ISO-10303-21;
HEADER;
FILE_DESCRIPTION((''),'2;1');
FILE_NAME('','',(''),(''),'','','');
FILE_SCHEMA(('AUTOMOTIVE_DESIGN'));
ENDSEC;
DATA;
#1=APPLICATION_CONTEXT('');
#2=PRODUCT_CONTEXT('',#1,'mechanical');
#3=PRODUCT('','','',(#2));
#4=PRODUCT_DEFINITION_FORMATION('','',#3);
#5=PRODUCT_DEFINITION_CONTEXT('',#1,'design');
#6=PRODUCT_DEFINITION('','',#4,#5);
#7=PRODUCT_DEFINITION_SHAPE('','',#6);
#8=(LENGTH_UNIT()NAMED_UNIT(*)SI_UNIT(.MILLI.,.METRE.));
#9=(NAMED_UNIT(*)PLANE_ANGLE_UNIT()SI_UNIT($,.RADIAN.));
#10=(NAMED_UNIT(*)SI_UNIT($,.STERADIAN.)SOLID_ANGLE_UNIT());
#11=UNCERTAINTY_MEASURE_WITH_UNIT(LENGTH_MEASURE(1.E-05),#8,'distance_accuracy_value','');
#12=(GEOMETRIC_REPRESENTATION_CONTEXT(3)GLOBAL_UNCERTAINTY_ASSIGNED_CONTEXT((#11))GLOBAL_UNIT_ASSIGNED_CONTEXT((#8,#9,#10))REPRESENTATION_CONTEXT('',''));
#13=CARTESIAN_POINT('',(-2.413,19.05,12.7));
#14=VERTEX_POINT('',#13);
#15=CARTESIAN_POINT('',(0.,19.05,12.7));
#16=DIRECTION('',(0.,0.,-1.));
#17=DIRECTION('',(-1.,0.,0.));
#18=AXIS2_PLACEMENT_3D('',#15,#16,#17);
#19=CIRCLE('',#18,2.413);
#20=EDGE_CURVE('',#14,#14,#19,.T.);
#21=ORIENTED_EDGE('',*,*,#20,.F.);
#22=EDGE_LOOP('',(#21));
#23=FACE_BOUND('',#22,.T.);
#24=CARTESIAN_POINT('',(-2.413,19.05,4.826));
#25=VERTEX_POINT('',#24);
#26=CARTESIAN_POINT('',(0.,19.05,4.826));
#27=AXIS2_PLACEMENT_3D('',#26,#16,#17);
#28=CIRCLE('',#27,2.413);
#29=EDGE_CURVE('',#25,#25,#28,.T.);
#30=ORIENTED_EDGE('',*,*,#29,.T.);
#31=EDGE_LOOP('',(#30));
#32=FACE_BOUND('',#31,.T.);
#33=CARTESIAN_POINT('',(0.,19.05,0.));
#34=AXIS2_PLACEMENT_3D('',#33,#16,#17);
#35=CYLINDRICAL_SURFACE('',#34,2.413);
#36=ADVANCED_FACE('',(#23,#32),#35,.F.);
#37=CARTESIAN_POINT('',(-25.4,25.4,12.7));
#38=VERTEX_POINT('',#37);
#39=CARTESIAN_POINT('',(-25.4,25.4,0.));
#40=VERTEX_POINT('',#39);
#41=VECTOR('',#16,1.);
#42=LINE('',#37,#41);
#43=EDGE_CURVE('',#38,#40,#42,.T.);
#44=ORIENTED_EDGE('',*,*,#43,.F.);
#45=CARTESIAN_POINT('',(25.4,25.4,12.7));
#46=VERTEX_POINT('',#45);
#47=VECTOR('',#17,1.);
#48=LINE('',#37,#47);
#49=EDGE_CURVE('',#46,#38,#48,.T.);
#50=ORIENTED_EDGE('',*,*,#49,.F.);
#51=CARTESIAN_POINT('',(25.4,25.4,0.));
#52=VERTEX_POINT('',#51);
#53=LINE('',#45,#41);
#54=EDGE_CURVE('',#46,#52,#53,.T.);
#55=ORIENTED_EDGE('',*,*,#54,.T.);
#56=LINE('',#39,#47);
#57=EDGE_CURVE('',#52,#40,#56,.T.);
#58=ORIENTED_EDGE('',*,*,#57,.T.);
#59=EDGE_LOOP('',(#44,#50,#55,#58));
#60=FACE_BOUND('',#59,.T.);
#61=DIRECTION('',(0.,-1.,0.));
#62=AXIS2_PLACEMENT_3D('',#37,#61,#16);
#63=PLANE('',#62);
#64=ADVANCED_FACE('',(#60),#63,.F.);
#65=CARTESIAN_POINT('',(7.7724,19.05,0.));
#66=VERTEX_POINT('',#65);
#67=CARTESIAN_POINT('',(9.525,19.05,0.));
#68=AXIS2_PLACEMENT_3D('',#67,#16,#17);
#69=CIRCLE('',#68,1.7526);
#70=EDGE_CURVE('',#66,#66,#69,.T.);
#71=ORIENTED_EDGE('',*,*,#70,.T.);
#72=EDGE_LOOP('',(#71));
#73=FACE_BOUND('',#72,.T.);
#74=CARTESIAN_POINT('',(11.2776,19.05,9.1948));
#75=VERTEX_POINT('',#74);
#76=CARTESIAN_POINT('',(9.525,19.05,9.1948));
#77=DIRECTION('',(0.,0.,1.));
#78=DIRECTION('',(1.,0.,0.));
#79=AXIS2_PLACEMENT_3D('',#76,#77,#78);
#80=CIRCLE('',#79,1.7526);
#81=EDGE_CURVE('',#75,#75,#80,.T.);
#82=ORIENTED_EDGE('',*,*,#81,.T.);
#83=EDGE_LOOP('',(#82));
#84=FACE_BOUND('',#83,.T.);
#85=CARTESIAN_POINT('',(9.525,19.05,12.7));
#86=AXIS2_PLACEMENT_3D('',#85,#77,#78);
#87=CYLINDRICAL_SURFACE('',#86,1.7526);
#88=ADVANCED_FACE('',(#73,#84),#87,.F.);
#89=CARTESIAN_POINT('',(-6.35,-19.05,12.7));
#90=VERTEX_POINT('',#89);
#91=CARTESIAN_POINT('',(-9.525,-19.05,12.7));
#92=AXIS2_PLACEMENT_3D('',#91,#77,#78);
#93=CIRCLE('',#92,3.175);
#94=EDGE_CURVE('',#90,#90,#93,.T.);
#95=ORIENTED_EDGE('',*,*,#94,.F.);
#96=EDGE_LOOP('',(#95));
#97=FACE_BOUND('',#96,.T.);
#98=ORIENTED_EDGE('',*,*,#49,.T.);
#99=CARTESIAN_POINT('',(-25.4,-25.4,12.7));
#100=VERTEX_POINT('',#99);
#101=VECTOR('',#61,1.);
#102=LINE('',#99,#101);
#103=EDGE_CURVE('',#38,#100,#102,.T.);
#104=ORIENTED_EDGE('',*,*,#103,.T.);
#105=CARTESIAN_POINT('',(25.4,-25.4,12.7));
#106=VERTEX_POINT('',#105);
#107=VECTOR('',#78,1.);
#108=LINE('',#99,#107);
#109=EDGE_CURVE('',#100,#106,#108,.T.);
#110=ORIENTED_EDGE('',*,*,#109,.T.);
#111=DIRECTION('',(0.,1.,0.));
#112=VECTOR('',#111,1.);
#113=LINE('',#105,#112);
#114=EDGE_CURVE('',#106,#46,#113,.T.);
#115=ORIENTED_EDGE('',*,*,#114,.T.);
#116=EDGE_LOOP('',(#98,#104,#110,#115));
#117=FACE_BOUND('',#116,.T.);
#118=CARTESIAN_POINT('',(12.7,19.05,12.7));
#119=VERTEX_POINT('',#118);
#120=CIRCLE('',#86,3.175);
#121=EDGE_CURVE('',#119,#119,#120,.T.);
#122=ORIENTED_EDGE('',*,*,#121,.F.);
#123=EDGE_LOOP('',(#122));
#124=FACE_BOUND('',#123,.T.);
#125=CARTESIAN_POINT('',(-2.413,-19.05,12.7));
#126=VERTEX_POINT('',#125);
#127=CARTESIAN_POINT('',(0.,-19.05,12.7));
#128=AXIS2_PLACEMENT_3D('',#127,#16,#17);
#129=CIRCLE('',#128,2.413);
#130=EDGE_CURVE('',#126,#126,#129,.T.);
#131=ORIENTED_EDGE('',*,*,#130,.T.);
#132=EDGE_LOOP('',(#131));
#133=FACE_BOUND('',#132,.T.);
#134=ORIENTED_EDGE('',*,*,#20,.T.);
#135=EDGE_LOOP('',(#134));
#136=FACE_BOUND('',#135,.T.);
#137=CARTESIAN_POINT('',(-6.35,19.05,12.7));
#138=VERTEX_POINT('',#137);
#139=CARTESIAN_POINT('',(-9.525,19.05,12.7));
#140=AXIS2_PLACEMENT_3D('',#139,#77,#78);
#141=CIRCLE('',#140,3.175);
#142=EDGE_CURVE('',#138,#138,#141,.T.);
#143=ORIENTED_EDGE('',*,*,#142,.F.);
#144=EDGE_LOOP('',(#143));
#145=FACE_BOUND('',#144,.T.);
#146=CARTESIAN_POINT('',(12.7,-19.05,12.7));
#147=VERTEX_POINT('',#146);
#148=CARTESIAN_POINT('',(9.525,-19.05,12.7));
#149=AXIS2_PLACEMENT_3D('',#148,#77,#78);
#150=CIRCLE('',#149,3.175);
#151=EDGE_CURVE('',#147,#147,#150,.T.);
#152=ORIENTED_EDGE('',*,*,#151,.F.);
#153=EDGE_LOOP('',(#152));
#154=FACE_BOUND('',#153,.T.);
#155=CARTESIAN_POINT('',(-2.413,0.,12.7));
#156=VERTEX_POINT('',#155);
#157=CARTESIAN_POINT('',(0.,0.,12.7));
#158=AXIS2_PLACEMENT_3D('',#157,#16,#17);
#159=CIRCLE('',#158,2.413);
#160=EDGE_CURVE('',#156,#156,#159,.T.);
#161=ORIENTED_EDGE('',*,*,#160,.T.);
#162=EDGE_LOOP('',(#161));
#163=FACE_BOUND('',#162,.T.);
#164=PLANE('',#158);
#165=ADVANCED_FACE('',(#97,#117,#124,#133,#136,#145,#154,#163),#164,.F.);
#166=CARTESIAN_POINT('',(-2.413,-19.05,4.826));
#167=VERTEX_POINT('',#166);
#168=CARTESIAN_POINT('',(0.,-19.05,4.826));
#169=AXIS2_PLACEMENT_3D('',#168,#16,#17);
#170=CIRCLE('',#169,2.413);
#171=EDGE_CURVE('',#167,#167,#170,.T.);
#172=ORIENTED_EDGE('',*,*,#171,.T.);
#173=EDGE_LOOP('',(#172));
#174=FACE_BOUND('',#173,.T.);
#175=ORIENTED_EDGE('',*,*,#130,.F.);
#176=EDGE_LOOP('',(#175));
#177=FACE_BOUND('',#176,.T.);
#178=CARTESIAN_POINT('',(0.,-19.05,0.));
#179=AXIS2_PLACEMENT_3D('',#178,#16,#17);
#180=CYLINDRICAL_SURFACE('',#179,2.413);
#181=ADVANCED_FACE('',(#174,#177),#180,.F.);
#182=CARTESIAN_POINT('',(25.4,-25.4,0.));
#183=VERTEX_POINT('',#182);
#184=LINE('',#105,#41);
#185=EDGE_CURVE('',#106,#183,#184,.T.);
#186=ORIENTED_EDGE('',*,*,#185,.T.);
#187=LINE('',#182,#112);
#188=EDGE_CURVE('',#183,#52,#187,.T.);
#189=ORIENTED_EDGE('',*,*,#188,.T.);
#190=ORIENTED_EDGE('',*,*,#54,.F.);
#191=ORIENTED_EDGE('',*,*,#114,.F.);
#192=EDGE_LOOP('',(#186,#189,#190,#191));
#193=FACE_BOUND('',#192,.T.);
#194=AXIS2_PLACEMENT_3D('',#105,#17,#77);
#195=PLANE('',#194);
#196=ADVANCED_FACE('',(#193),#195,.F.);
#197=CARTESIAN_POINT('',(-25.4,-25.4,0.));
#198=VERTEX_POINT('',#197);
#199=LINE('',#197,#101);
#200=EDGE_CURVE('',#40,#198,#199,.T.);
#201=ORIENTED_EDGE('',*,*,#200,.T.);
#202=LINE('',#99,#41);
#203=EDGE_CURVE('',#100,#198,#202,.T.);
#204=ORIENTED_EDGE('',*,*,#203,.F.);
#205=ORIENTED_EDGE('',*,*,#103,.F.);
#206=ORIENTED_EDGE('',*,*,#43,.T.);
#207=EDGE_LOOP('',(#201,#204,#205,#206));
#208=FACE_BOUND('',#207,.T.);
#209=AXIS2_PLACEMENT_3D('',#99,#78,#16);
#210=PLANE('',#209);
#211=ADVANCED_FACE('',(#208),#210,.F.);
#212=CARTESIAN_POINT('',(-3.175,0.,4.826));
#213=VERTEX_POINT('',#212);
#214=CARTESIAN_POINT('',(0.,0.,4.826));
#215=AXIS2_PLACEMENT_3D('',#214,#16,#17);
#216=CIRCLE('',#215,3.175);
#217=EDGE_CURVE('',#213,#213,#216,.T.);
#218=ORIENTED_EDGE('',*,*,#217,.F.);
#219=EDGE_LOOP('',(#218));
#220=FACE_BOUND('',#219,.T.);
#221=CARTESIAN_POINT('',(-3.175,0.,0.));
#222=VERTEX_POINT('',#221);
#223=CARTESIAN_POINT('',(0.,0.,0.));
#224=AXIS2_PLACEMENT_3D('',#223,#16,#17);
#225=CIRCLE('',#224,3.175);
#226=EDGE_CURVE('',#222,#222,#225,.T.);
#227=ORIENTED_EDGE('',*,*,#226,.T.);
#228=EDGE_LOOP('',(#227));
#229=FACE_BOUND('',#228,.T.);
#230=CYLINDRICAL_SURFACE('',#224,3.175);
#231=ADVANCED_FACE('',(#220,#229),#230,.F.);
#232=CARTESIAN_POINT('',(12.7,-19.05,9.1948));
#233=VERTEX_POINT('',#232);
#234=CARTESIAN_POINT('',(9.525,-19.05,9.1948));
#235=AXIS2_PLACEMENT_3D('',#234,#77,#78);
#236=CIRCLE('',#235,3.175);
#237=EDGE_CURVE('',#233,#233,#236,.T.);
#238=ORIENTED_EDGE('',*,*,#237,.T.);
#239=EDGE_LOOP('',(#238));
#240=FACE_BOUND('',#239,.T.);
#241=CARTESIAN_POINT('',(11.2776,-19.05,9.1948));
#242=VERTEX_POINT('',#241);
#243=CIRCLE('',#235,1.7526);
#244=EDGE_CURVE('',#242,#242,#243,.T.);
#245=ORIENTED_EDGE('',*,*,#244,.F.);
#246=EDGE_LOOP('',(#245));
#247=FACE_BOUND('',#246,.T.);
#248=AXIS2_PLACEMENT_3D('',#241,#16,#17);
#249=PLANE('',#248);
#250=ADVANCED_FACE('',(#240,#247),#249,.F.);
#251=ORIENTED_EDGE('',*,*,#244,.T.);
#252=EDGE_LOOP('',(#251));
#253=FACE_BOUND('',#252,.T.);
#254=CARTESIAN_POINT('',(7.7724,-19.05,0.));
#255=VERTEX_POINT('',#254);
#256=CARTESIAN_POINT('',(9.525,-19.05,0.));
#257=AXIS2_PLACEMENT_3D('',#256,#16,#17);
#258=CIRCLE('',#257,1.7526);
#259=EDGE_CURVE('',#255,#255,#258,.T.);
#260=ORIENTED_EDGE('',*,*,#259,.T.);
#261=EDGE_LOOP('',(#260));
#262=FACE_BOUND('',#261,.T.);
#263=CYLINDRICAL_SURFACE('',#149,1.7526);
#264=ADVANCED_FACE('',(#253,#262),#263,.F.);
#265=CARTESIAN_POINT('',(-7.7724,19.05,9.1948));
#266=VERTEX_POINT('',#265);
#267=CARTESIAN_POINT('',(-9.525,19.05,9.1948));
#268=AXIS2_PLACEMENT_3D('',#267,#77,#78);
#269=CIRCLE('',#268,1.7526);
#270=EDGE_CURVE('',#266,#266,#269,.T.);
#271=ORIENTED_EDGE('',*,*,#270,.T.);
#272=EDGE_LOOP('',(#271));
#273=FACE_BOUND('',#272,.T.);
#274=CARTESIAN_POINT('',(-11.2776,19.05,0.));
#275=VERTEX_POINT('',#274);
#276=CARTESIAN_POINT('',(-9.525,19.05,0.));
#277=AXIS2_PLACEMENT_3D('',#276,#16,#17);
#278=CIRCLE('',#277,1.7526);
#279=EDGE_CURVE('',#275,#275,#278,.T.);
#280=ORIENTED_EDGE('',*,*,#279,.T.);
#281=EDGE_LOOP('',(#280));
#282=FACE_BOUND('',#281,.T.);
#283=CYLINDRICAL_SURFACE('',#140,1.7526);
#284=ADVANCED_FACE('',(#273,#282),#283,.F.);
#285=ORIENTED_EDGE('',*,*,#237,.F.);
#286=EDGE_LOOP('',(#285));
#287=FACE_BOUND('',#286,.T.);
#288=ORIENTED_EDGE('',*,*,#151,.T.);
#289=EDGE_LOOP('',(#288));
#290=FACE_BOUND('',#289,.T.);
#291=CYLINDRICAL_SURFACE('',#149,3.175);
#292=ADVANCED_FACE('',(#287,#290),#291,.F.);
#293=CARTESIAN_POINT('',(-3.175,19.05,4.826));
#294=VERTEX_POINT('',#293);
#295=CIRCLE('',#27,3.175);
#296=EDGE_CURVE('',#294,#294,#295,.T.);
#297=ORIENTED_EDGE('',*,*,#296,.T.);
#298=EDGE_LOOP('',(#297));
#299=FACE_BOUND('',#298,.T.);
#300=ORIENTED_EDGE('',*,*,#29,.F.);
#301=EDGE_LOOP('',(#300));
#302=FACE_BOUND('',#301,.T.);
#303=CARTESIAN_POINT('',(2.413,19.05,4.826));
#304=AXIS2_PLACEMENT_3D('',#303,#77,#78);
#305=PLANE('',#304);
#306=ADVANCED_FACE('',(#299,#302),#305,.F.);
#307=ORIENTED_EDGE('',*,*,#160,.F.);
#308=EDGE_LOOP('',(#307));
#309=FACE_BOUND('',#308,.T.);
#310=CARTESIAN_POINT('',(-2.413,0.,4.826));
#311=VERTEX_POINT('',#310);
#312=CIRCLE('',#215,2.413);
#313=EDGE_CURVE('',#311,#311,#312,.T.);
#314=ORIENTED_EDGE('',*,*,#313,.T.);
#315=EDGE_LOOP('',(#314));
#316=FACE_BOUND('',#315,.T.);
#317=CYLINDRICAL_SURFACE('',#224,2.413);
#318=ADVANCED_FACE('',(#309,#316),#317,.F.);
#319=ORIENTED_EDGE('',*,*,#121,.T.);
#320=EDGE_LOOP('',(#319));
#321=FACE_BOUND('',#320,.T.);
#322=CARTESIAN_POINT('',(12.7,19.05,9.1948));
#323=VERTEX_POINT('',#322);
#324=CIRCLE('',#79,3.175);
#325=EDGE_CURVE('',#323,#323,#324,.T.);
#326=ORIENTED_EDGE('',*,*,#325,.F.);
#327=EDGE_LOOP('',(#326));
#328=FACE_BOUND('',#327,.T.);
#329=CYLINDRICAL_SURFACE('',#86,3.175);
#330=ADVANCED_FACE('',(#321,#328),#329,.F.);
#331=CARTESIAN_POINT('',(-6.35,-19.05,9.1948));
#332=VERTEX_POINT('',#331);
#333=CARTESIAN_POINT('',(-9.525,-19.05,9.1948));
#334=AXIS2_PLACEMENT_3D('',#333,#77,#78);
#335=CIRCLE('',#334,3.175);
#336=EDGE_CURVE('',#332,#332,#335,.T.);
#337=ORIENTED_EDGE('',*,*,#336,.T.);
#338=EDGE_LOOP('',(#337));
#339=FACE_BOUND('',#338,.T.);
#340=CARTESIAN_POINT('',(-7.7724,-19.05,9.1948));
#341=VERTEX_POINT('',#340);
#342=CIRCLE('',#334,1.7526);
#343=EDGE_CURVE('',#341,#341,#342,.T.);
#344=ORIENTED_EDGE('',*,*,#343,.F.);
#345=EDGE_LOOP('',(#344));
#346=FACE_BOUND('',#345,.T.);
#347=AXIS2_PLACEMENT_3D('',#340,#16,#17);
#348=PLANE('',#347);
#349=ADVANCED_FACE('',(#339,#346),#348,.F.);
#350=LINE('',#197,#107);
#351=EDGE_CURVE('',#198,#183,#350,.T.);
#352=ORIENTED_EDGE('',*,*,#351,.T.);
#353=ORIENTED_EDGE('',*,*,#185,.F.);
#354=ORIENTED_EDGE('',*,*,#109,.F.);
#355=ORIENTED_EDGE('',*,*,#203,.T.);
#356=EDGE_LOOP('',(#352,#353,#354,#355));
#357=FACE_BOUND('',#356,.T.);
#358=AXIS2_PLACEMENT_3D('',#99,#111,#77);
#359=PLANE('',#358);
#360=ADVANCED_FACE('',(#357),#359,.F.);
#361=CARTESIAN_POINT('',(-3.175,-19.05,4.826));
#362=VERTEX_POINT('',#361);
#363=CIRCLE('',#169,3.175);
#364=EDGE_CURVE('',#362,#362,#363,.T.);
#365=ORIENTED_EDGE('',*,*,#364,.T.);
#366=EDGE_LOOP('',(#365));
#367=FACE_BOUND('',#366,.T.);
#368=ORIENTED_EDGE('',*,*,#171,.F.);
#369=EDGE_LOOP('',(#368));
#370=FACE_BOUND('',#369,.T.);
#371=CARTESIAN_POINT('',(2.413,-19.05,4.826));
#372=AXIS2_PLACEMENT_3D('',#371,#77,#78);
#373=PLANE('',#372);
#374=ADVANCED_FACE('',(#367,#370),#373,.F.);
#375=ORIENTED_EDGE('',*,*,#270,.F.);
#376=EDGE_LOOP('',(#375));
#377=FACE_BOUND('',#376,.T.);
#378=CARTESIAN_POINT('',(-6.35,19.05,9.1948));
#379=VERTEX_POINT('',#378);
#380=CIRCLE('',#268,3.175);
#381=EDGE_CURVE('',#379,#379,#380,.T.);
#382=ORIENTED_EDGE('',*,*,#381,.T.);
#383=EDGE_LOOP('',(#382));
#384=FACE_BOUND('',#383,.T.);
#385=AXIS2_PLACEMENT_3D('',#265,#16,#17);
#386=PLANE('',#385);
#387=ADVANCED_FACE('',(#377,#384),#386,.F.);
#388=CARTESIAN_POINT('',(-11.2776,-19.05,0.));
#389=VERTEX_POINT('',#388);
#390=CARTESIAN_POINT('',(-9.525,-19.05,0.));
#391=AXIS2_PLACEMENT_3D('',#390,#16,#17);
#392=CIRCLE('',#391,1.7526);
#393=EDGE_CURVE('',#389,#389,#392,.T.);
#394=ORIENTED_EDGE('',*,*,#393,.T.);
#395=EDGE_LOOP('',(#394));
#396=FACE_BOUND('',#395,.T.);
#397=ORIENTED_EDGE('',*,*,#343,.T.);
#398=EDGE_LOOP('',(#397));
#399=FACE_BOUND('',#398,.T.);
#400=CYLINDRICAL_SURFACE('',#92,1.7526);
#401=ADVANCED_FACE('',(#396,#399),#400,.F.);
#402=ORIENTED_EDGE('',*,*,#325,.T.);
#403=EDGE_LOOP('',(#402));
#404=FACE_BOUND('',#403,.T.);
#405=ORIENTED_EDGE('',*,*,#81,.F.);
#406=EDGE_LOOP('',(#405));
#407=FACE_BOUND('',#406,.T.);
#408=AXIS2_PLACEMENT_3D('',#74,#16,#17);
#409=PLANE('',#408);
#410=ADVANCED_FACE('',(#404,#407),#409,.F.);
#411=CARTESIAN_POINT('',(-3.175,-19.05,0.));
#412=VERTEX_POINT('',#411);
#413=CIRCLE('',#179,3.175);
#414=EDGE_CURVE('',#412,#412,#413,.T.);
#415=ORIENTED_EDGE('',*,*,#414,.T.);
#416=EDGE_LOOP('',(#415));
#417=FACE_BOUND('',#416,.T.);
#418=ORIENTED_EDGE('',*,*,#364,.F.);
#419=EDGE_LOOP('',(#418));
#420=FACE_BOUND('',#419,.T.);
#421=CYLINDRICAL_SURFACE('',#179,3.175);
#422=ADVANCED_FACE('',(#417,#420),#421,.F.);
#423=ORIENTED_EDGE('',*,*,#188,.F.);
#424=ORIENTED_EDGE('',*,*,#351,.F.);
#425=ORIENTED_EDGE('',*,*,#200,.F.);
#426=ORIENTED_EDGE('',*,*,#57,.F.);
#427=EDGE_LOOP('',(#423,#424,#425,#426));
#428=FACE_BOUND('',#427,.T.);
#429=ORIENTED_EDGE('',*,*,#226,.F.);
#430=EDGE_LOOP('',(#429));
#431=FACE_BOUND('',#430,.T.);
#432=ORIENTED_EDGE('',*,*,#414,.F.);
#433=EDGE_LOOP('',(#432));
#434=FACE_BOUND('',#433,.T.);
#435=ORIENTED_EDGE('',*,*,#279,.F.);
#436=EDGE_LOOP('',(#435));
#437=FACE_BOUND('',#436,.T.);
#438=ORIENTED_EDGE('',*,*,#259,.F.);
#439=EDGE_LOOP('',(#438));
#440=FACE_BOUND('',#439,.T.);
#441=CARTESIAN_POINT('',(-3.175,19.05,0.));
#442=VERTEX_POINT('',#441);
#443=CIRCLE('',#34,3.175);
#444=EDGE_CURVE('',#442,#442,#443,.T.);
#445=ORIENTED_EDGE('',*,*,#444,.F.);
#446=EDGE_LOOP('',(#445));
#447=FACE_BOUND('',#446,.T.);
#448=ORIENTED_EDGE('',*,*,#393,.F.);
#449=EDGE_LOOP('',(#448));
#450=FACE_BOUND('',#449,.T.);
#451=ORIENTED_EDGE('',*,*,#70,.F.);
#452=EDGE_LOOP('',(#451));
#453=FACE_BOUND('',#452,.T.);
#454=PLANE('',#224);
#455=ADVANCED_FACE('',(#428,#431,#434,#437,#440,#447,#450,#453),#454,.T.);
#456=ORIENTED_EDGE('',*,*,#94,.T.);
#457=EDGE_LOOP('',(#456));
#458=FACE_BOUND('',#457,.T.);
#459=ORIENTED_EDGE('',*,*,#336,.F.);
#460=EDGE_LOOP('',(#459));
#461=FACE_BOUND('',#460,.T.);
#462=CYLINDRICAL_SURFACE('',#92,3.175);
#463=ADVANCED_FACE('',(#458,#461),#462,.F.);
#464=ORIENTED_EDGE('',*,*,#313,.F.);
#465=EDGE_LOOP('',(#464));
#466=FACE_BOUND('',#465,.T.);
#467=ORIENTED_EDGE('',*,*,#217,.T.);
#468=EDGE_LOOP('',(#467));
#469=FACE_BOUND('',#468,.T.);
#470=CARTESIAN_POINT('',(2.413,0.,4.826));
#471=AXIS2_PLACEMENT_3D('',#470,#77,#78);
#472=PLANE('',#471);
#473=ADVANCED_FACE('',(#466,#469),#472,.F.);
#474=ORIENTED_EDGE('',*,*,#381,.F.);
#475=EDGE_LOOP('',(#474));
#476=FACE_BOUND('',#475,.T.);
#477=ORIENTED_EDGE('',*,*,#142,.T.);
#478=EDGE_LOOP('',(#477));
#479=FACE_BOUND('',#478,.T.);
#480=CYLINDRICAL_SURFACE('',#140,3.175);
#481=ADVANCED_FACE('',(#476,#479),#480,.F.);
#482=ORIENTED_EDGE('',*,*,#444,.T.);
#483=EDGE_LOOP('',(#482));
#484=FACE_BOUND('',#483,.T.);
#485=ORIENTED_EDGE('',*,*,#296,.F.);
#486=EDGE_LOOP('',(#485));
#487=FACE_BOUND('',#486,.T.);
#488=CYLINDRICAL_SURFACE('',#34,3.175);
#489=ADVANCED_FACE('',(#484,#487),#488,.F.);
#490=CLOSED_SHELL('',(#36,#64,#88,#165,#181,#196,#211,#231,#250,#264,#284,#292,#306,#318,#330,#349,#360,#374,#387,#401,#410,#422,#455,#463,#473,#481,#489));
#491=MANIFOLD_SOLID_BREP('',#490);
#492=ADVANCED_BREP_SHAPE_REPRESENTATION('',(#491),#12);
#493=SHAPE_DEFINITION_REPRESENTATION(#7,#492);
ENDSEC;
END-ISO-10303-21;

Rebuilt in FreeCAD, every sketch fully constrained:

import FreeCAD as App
import Part
import Sketcher
Q = App.Units.Quantity


def add_polygon(sketch, points):
    """Adds a closed chain of lines whose ends are joined by coincident constraints."""
    first, n = sketch.GeometryCount, len(points)
    for a, b in zip(points, points[1:] + points[:1]):
        sketch.addGeometry(Part.LineSegment(App.Vector(*a, 0), App.Vector(*b, 0)), False)
    for i in range(n):
        sketch.addConstraint(Sketcher.Constraint("Coincident", first + i, 2, first + (i + 1) % n, 1))

doc = App.newDocument("Part")
body = doc.addObject("PartDesign::Body", "Body")

# Sketch on XY plane
sketch1 = body.newObject("Sketcher::SketchObject", "Sketch")
sketch1.AttachmentSupport = (doc.getObject("XY_Plane"), [""])
sketch1.MapMode = "FlatFace"
add_polygon(sketch1, [(-25, 25), (-25, -25), (25, -25), (25, 25)])  # lines 0-3
sketch1.addConstraint(Sketcher.Constraint("Vertical", 0))
sketch1.addConstraint(Sketcher.Constraint("Horizontal", 1))
sketch1.addConstraint(Sketcher.Constraint("Vertical", 2))
sketch1.addConstraint(Sketcher.Constraint("Horizontal", 3))
sketch1.addConstraint(Sketcher.Constraint("Symmetric", 0, 2, 2, 2, -1, 1))
sketch1.addConstraint(Sketcher.Constraint("Equal", 3, 0))
sketch1.addConstraint(Sketcher.Constraint("DistanceX", 1, 1, 1, 2, Q("2 in")))
pad1 = body.newObject("PartDesign::Pad", "Pad")
pad1.Profile = sketch1
pad1.Length = Q("0.5 in")

# Sketch on XY plane
sketch2 = body.newObject("Sketcher::SketchObject", "Sketch001")
sketch2.AttachmentSupport = (doc.getObject("XY_Plane"), [""])
sketch2.MapMode = "FlatFace"
sketch2.addGeometry(Part.Circle(App.Vector(0, 19.1, 0), App.Vector(0, 0, 1), 2.4), False)
sketch2.addGeometry(Part.Circle(App.Vector(0, 0, 0), App.Vector(0, 0, 1), 2.4), False)
sketch2.addGeometry(Part.Circle(App.Vector(0, -19.1, 0), App.Vector(0, 0, 1), 2.4), False)
sketch2.addConstraint(Sketcher.Constraint("Coincident", 1, 3, -1, 1))
sketch2.addConstraint(Sketcher.Constraint("Equal", 0, 1))
sketch2.addConstraint(Sketcher.Constraint("Equal", 1, 2))
sketch2.addConstraint(Sketcher.Constraint("Symmetric", 0, 3, 2, 3, -1, 1))
sketch2.addConstraint(Sketcher.Constraint("PointOnObject", 0, 3, -2))
sketch2.addConstraint(Sketcher.Constraint("Diameter", 0, Q("0.19 in")))
sketch2.addConstraint(Sketcher.Constraint("DistanceY", 2, 3, 0, 3, Q("1.5 in")))
doc.recompute()
hole = body.newObject("PartDesign::Hole", "Hole")
hole.Profile = sketch2
hole.ThreadType = "None"
hole.Diameter = Q("0.19 in")
hole.DepthType = "ThroughAll"
hole.HoleCutType = "Counterbore"
hole.HoleCutDiameter = Q("0.25 in")
hole.HoleCutDepth = Q("0.19 in")
hole.Reversed = True

# Sketch on XY plane
sketch3 = body.newObject("Sketcher::SketchObject", "Sketch002")
sketch3.AttachmentSupport = (doc.getObject("XY_Plane"), [""])
sketch3.MapMode = "FlatFace"
sketch3.AttachmentOffset = App.Placement(App.Vector(0, 0, 0.5 * 25.4), App.Rotation())
sketch3.addGeometry(Part.Circle(App.Vector(-9.5, 19.1, 0), App.Vector(0, 0, 1), 1.8), False)
sketch3.addGeometry(Part.Circle(App.Vector(-9.5, -19.1, 0), App.Vector(0, 0, 1), 1.8), False)
sketch3.addGeometry(Part.Circle(App.Vector(9.5, -19.1, 0), App.Vector(0, 0, 1), 1.8), False)
sketch3.addGeometry(Part.Circle(App.Vector(9.5, 19.1, 0), App.Vector(0, 0, 1), 1.8), False)
sketch3.addConstraint(Sketcher.Constraint("Equal", 0, 1))
sketch3.addConstraint(Sketcher.Constraint("Equal", 1, 2))
sketch3.addConstraint(Sketcher.Constraint("Equal", 2, 3))
sketch3.addConstraint(Sketcher.Constraint("Symmetric", 0, 3, 2, 3, -1, 1))
sketch3.addConstraint(Sketcher.Constraint("Symmetric", 1, 3, 3, 3, -1, 1))
sketch3.addConstraint(Sketcher.Constraint("Symmetric", 1, 3, 2, 3, -2))
sketch3.addConstraint(Sketcher.Constraint("Diameter", 0, Q("0.138 in")))
sketch3.addConstraint(Sketcher.Constraint("DistanceY", 1, 3, 0, 3, Q("1.5 in")))
sketch3.addConstraint(Sketcher.Constraint("DistanceX", 1, 3, 2, 3, Q("0.75 in")))
doc.recompute()
hole2 = body.newObject("PartDesign::Hole", "Hole001")
hole2.Profile = sketch3
hole2.ThreadType = "None"
hole2.Diameter = Q("0.138 in")
hole2.DepthType = "Dimension"
hole2.Depth = Q("2 in")
hole2.DrillPoint = "Flat"
hole2.HoleCutType = "Counterbore"
hole2.HoleCutDiameter = Q("0.25 in")
hole2.HoleCutDepth = Q("0.138 in")

doc.recompute()
